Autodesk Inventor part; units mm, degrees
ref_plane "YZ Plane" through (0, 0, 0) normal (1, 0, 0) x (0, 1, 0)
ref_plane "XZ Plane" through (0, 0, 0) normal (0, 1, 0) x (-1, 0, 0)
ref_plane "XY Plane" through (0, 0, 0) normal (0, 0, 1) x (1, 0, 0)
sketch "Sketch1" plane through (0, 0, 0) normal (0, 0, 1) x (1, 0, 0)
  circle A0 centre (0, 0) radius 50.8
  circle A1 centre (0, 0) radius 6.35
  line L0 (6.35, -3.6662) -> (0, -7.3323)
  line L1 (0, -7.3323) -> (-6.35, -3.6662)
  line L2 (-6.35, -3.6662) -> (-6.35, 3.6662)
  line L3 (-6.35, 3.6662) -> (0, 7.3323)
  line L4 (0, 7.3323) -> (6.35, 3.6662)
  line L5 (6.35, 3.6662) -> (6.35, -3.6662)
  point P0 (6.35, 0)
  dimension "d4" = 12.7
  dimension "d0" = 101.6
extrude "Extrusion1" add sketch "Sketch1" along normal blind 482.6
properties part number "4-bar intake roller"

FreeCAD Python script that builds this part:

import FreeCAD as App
import Part
import Sketcher
from FreeCAD import Vector
Q = App.Units.Quantity


def add_polygon(sketch, points):
    """Adds a closed chain of lines whose ends are joined by coincident constraints."""
    first, n = sketch.GeometryCount, len(points)
    for a, b in zip(points, points[1:] + points[:1]):
        sketch.addGeometry(Part.LineSegment(App.Vector(*a, 0), App.Vector(*b, 0)), False)
    for i in range(n):
        sketch.addConstraint(Sketcher.Constraint("Coincident", first + i, 2, first + (i + 1) % n, 1))

doc = App.newDocument("Part")
body = doc.addObject("PartDesign::Body", "Body")

# Sketch on XY plane
sketch1 = body.newObject("Sketcher::SketchObject", "Sketch")
sketch1.AttachmentSupport = (doc.getObject("XY_Plane"), [""])
sketch1.MapMode = "FlatFace"
sketch1.addGeometry(Part.Circle(Vector(0, 0, 0), Vector(0, 0, 1), 51), False)  # 0
add_polygon(sketch1, [(6, 4), (6, -4), (0, -7), (-6, -4), (-6, 4), (0, 7)])  # lines 1-6
sketch1.addConstraint(Sketcher.Constraint("Vertical", 1))
sketch1.addConstraint(Sketcher.Constraint("Vertical", 4))
sketch1.addConstraint(Sketcher.Constraint("Coincident", 0, 3, -1, 1))
sketch1.addConstraint(Sketcher.Constraint("Symmetric", 1, 2, 4, 2, -1, 1))
sketch1.addConstraint(Sketcher.Constraint("Symmetric", 2, 2, 5, 2, -1, 1))
sketch1.addConstraint(Sketcher.Constraint("PointOnObject", 2, 2, -2))
sketch1.addConstraint(Sketcher.Constraint("Parallel", 3, 6))
sketch1.addConstraint(Sketcher.Constraint("Horizontal", 1, 2, 3, 2))
sketch1.addConstraint(Sketcher.Constraint("Diameter", 0, Q("4 in")))
sketch1.addConstraint(Sketcher.Constraint("DistanceX", 3, 2, 1, 2, Q("0.5 in")))
sketch1.addConstraint(Sketcher.Constraint("Angle", 2, Q("-150.0005 deg")))
sketch1.addConstraint(Sketcher.Constraint("DistanceY", 2, 2, 4, 2, Q("0.433 in")))
pad1 = body.newObject("PartDesign::Pad", "Pad")
pad1.Profile = sketch1
pad1.Length = Q("19 in")

doc.recompute()
